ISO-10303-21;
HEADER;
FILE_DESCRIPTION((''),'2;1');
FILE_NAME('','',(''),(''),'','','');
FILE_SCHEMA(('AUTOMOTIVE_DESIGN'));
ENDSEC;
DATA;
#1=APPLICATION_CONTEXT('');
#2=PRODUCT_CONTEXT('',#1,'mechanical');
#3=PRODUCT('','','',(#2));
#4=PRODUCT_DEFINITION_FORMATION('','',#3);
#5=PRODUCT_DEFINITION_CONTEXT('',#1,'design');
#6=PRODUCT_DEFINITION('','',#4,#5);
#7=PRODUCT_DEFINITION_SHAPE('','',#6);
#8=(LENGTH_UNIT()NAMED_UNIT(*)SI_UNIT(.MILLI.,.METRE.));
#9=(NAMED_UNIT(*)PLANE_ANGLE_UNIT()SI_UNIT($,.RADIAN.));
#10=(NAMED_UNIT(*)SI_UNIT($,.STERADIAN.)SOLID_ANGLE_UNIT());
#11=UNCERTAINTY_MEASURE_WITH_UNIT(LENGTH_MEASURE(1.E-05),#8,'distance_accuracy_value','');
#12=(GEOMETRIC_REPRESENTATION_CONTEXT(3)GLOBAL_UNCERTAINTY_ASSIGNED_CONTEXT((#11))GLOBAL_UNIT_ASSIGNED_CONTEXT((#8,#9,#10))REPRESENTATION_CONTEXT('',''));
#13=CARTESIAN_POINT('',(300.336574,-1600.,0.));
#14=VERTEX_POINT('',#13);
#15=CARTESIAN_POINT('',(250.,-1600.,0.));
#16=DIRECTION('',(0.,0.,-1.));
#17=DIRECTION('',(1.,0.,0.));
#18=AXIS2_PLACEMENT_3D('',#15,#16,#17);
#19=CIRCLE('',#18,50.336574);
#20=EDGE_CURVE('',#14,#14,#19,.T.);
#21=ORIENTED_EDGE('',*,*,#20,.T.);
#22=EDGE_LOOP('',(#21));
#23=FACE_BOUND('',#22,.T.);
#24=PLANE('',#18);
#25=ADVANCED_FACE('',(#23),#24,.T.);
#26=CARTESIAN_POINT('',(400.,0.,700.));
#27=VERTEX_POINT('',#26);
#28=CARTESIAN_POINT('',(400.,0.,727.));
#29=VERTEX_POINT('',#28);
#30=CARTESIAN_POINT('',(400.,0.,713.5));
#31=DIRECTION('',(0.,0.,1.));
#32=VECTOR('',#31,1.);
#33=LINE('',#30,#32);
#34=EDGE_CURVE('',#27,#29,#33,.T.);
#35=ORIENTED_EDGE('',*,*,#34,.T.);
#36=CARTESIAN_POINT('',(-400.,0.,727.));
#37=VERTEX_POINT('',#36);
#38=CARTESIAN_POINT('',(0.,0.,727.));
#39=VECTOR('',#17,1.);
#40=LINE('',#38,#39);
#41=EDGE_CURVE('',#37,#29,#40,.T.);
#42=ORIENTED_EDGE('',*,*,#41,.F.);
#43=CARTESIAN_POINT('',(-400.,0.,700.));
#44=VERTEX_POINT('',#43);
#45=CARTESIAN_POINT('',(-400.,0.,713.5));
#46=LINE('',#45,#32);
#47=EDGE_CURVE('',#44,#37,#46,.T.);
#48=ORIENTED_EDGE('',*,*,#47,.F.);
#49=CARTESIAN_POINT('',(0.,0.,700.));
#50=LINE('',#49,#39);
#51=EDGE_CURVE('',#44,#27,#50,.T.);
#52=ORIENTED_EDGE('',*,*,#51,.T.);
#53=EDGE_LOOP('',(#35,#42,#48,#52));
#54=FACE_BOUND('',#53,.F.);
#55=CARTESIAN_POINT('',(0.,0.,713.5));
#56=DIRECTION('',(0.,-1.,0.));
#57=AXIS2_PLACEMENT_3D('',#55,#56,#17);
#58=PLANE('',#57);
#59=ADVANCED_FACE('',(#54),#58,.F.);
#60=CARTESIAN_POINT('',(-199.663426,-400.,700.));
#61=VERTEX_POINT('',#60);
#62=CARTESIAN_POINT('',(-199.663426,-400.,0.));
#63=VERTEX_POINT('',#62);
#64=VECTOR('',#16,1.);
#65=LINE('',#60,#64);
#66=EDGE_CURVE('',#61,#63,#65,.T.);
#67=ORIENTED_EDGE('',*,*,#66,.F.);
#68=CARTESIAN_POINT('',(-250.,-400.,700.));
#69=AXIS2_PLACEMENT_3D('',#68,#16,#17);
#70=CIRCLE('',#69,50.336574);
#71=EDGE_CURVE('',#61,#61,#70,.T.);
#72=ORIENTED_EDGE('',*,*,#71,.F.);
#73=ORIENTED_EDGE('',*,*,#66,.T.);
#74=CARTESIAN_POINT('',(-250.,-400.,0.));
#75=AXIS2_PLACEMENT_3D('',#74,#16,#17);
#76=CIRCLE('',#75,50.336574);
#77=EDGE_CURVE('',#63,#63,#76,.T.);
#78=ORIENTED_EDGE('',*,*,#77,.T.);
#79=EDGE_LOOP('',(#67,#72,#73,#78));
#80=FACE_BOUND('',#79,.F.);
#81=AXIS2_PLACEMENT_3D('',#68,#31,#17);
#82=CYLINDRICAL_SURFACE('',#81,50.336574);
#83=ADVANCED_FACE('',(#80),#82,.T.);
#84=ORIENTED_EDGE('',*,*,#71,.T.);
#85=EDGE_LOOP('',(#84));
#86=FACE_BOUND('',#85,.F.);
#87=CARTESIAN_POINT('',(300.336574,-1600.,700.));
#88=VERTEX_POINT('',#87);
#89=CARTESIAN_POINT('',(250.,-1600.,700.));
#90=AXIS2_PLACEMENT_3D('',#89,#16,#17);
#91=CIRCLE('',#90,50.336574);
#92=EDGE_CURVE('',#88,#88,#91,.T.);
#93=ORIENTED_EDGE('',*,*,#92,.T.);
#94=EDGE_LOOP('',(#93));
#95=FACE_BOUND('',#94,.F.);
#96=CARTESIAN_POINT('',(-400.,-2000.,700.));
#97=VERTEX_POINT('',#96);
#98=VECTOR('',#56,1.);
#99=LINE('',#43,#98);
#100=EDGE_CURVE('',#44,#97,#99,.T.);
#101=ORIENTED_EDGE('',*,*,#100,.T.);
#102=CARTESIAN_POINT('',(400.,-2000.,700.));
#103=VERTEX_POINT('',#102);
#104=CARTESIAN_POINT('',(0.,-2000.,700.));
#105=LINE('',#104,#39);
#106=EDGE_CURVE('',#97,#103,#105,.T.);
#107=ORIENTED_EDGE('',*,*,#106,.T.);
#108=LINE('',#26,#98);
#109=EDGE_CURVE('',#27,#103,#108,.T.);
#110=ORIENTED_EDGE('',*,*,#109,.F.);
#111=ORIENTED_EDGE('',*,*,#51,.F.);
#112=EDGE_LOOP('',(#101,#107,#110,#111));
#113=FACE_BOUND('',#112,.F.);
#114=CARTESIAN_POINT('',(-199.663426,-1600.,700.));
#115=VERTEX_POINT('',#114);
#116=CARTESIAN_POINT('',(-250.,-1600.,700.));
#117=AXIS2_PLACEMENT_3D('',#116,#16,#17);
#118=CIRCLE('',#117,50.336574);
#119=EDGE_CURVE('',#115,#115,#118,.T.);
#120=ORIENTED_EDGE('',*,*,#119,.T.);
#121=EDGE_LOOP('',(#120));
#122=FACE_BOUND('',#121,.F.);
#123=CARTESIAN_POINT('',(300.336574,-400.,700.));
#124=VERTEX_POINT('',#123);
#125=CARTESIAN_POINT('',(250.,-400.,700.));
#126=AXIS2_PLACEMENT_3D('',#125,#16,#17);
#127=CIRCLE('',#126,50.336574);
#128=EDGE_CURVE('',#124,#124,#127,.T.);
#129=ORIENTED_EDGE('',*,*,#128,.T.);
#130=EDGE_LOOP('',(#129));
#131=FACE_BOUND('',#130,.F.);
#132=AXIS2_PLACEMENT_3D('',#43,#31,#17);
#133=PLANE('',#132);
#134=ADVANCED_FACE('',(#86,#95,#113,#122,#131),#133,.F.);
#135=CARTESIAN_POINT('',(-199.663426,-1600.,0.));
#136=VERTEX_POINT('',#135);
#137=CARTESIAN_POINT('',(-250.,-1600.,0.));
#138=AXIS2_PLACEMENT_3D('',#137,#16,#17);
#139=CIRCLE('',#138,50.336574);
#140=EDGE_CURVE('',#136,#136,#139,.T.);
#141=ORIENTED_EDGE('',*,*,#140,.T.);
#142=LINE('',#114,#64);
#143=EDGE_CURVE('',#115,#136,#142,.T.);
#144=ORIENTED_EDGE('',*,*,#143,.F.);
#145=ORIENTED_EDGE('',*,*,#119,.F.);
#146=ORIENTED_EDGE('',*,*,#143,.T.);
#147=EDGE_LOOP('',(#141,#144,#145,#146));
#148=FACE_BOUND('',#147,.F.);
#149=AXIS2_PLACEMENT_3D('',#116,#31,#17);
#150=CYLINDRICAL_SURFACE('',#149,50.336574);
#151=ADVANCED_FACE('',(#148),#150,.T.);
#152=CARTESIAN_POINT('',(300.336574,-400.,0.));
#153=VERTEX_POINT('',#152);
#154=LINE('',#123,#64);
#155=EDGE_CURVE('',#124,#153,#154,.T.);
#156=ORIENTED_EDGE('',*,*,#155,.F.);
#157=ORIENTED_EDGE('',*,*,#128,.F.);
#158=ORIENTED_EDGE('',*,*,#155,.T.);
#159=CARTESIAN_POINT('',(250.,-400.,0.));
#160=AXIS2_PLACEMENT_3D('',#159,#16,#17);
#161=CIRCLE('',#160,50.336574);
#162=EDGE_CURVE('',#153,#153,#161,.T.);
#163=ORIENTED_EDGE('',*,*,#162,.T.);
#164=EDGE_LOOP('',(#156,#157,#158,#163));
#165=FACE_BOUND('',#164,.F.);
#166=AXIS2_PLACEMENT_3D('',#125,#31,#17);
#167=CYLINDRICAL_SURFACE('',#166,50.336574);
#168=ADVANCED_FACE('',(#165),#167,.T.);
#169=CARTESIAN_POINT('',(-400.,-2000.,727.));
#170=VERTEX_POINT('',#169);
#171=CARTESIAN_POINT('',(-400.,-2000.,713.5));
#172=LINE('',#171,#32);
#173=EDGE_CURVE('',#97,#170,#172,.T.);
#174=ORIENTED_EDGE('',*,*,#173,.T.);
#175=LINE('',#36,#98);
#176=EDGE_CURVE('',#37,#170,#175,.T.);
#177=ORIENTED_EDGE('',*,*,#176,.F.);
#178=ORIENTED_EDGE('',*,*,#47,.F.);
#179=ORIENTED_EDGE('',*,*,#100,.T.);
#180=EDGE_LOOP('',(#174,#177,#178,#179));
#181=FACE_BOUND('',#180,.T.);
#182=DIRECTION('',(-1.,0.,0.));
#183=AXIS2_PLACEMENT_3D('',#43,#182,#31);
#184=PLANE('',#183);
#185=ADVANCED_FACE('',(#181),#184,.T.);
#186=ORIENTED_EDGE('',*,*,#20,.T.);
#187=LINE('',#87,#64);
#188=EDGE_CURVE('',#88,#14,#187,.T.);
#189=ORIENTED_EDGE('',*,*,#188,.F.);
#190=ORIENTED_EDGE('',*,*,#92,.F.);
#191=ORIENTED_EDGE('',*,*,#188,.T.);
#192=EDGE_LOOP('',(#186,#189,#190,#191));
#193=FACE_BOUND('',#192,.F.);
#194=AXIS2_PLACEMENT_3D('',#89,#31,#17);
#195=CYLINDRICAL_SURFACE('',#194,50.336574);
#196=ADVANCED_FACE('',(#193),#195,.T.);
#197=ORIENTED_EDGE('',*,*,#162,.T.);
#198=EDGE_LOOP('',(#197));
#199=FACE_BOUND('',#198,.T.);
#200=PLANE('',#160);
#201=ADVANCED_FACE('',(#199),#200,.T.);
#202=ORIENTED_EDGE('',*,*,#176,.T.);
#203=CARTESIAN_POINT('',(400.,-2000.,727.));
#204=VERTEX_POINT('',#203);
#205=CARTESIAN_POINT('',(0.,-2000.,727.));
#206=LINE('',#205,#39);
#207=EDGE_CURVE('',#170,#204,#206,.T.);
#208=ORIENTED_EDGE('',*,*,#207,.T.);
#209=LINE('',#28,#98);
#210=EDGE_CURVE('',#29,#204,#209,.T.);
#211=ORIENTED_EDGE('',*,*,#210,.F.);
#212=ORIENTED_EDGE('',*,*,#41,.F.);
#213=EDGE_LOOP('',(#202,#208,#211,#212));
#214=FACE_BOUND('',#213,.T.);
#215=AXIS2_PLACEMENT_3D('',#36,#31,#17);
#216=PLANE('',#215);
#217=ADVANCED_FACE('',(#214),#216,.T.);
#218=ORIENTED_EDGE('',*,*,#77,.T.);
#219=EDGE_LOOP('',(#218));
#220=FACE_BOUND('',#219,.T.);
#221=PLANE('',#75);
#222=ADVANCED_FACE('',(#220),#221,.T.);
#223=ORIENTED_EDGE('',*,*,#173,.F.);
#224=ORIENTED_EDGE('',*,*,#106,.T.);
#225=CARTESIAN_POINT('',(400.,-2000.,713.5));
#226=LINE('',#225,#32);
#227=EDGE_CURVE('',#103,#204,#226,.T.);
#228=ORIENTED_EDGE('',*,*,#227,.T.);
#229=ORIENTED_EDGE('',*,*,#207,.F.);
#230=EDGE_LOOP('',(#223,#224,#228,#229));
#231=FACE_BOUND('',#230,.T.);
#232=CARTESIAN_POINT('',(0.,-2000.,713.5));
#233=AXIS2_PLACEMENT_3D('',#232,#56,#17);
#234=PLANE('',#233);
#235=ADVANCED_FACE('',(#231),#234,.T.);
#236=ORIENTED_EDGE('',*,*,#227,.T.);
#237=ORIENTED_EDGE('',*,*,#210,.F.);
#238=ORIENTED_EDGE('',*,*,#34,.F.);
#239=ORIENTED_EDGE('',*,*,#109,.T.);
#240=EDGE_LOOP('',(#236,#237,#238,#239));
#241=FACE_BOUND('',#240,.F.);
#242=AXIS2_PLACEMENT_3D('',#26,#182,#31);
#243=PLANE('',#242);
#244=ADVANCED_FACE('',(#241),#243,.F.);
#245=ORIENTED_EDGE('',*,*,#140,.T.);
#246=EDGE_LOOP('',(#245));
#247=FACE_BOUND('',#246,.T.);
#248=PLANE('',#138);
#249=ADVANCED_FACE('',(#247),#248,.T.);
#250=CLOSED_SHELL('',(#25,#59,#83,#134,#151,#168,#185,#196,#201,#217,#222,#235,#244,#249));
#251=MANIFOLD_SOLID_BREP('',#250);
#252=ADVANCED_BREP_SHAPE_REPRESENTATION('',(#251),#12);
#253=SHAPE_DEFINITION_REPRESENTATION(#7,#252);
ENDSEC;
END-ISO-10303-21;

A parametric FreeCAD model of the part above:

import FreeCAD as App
import Part
import Sketcher
from FreeCAD import Vector


def add_polygon(sketch, points):
    """Adds a closed chain of lines whose ends are joined by coincident constraints."""
    first, n = sketch.GeometryCount, len(points)
    for a, b in zip(points, points[1:] + points[:1]):
        sketch.addGeometry(Part.LineSegment(App.Vector(*a, 0), App.Vector(*b, 0)), False)
    for i in range(n):
        sketch.addConstraint(Sketcher.Constraint("Coincident", first + i, 2, first + (i + 1) % n, 1))

doc = App.newDocument("Part")
body = doc.addObject("PartDesign::Body", "Body")

sketch1 = body.newObject("Sketcher::SketchObject", "Sketch")
sketch1.AttachmentSupport = (doc.getObject("XZ_Plane"), [""])
sketch1.MapMode = "FlatFace"
add_polygon(sketch1, [(-400, 727), (-400, 700), (400, 700), (400, 727)])
sketch1.addConstraint(Sketcher.Constraint("Vertical", 0))
sketch1.addConstraint(Sketcher.Constraint("Horizontal", 1))
sketch1.addConstraint(Sketcher.Constraint("Vertical", 2))
sketch1.addConstraint(Sketcher.Constraint("Horizontal", 3))
sketch1.addConstraint(Sketcher.Constraint("DistanceX", 1, 1, 1, 2, 800.0))
sketch1.addConstraint(Sketcher.Constraint("DistanceY", 0, 2, 0, 1, 27.0))
sketch1.addConstraint(Sketcher.Constraint("DistanceX", 0, 2, -1, 1, 400.0))
sketch1.addConstraint(Sketcher.Constraint("DistanceY", -1, 1, 0, 2, 700.0))
pad1 = body.newObject("PartDesign::Pad", "Pad")
pad1.Profile = sketch1
pad1.Length = 2000

sketch2 = body.newObject("Sketcher::SketchObject", "Sketch001")
sketch2.AttachmentSupport = (doc.getObject("XY_Plane"), [""])
sketch2.MapMode = "FlatFace"
sketch2.AttachmentOffset = App.Placement(Vector(0, 0, 700), App.Rotation())
sketch2.addGeometry(Part.Circle(Vector(-250, -400, 0), Vector(0, 0, 1), 50), False)
sketch2.addGeometry(Part.Circle(Vector(-250, -1600, 0), Vector(0, 0, 1), 50), False)
sketch2.addGeometry(Part.Circle(Vector(250, -1600, 0), Vector(0, 0, 1), 50), False)
sketch2.addGeometry(Part.Circle(Vector(250, -400, 0), Vector(0, 0, 1), 50), False)
sketch2.addConstraint(Sketcher.Constraint("Equal", 0, 1))
sketch2.addConstraint(Sketcher.Constraint("Equal", 1, 2))
sketch2.addConstraint(Sketcher.Constraint("Equal", 2, 3))
sketch2.addConstraint(Sketcher.Constraint("Symmetric", 1, 3, 2, 3, -2))
sketch2.addConstraint(Sketcher.Constraint("Symmetric", 0, 3, 3, 3, -2))
sketch2.addConstraint(Sketcher.Constraint("Vertical", 0, 3, 1, 3))
sketch2.addConstraint(Sketcher.Constraint("DistanceX", 0, 3, -1, 1, 250.0))
sketch2.addConstraint(Sketcher.Constraint("DistanceY", 0, 3, -1, 1, 400.0))
sketch2.addConstraint(Sketcher.Constraint("DistanceY", 1, 3, -1, 1, 1600.0))
sketch2.addConstraint(Sketcher.Constraint("Diameter", 0, 100.673148))
pad2 = body.newObject("PartDesign::Pad", "Pad001")
pad2.Profile = sketch2
pad2.Length = 700
pad2.Reversed = True

doc.recompute()
